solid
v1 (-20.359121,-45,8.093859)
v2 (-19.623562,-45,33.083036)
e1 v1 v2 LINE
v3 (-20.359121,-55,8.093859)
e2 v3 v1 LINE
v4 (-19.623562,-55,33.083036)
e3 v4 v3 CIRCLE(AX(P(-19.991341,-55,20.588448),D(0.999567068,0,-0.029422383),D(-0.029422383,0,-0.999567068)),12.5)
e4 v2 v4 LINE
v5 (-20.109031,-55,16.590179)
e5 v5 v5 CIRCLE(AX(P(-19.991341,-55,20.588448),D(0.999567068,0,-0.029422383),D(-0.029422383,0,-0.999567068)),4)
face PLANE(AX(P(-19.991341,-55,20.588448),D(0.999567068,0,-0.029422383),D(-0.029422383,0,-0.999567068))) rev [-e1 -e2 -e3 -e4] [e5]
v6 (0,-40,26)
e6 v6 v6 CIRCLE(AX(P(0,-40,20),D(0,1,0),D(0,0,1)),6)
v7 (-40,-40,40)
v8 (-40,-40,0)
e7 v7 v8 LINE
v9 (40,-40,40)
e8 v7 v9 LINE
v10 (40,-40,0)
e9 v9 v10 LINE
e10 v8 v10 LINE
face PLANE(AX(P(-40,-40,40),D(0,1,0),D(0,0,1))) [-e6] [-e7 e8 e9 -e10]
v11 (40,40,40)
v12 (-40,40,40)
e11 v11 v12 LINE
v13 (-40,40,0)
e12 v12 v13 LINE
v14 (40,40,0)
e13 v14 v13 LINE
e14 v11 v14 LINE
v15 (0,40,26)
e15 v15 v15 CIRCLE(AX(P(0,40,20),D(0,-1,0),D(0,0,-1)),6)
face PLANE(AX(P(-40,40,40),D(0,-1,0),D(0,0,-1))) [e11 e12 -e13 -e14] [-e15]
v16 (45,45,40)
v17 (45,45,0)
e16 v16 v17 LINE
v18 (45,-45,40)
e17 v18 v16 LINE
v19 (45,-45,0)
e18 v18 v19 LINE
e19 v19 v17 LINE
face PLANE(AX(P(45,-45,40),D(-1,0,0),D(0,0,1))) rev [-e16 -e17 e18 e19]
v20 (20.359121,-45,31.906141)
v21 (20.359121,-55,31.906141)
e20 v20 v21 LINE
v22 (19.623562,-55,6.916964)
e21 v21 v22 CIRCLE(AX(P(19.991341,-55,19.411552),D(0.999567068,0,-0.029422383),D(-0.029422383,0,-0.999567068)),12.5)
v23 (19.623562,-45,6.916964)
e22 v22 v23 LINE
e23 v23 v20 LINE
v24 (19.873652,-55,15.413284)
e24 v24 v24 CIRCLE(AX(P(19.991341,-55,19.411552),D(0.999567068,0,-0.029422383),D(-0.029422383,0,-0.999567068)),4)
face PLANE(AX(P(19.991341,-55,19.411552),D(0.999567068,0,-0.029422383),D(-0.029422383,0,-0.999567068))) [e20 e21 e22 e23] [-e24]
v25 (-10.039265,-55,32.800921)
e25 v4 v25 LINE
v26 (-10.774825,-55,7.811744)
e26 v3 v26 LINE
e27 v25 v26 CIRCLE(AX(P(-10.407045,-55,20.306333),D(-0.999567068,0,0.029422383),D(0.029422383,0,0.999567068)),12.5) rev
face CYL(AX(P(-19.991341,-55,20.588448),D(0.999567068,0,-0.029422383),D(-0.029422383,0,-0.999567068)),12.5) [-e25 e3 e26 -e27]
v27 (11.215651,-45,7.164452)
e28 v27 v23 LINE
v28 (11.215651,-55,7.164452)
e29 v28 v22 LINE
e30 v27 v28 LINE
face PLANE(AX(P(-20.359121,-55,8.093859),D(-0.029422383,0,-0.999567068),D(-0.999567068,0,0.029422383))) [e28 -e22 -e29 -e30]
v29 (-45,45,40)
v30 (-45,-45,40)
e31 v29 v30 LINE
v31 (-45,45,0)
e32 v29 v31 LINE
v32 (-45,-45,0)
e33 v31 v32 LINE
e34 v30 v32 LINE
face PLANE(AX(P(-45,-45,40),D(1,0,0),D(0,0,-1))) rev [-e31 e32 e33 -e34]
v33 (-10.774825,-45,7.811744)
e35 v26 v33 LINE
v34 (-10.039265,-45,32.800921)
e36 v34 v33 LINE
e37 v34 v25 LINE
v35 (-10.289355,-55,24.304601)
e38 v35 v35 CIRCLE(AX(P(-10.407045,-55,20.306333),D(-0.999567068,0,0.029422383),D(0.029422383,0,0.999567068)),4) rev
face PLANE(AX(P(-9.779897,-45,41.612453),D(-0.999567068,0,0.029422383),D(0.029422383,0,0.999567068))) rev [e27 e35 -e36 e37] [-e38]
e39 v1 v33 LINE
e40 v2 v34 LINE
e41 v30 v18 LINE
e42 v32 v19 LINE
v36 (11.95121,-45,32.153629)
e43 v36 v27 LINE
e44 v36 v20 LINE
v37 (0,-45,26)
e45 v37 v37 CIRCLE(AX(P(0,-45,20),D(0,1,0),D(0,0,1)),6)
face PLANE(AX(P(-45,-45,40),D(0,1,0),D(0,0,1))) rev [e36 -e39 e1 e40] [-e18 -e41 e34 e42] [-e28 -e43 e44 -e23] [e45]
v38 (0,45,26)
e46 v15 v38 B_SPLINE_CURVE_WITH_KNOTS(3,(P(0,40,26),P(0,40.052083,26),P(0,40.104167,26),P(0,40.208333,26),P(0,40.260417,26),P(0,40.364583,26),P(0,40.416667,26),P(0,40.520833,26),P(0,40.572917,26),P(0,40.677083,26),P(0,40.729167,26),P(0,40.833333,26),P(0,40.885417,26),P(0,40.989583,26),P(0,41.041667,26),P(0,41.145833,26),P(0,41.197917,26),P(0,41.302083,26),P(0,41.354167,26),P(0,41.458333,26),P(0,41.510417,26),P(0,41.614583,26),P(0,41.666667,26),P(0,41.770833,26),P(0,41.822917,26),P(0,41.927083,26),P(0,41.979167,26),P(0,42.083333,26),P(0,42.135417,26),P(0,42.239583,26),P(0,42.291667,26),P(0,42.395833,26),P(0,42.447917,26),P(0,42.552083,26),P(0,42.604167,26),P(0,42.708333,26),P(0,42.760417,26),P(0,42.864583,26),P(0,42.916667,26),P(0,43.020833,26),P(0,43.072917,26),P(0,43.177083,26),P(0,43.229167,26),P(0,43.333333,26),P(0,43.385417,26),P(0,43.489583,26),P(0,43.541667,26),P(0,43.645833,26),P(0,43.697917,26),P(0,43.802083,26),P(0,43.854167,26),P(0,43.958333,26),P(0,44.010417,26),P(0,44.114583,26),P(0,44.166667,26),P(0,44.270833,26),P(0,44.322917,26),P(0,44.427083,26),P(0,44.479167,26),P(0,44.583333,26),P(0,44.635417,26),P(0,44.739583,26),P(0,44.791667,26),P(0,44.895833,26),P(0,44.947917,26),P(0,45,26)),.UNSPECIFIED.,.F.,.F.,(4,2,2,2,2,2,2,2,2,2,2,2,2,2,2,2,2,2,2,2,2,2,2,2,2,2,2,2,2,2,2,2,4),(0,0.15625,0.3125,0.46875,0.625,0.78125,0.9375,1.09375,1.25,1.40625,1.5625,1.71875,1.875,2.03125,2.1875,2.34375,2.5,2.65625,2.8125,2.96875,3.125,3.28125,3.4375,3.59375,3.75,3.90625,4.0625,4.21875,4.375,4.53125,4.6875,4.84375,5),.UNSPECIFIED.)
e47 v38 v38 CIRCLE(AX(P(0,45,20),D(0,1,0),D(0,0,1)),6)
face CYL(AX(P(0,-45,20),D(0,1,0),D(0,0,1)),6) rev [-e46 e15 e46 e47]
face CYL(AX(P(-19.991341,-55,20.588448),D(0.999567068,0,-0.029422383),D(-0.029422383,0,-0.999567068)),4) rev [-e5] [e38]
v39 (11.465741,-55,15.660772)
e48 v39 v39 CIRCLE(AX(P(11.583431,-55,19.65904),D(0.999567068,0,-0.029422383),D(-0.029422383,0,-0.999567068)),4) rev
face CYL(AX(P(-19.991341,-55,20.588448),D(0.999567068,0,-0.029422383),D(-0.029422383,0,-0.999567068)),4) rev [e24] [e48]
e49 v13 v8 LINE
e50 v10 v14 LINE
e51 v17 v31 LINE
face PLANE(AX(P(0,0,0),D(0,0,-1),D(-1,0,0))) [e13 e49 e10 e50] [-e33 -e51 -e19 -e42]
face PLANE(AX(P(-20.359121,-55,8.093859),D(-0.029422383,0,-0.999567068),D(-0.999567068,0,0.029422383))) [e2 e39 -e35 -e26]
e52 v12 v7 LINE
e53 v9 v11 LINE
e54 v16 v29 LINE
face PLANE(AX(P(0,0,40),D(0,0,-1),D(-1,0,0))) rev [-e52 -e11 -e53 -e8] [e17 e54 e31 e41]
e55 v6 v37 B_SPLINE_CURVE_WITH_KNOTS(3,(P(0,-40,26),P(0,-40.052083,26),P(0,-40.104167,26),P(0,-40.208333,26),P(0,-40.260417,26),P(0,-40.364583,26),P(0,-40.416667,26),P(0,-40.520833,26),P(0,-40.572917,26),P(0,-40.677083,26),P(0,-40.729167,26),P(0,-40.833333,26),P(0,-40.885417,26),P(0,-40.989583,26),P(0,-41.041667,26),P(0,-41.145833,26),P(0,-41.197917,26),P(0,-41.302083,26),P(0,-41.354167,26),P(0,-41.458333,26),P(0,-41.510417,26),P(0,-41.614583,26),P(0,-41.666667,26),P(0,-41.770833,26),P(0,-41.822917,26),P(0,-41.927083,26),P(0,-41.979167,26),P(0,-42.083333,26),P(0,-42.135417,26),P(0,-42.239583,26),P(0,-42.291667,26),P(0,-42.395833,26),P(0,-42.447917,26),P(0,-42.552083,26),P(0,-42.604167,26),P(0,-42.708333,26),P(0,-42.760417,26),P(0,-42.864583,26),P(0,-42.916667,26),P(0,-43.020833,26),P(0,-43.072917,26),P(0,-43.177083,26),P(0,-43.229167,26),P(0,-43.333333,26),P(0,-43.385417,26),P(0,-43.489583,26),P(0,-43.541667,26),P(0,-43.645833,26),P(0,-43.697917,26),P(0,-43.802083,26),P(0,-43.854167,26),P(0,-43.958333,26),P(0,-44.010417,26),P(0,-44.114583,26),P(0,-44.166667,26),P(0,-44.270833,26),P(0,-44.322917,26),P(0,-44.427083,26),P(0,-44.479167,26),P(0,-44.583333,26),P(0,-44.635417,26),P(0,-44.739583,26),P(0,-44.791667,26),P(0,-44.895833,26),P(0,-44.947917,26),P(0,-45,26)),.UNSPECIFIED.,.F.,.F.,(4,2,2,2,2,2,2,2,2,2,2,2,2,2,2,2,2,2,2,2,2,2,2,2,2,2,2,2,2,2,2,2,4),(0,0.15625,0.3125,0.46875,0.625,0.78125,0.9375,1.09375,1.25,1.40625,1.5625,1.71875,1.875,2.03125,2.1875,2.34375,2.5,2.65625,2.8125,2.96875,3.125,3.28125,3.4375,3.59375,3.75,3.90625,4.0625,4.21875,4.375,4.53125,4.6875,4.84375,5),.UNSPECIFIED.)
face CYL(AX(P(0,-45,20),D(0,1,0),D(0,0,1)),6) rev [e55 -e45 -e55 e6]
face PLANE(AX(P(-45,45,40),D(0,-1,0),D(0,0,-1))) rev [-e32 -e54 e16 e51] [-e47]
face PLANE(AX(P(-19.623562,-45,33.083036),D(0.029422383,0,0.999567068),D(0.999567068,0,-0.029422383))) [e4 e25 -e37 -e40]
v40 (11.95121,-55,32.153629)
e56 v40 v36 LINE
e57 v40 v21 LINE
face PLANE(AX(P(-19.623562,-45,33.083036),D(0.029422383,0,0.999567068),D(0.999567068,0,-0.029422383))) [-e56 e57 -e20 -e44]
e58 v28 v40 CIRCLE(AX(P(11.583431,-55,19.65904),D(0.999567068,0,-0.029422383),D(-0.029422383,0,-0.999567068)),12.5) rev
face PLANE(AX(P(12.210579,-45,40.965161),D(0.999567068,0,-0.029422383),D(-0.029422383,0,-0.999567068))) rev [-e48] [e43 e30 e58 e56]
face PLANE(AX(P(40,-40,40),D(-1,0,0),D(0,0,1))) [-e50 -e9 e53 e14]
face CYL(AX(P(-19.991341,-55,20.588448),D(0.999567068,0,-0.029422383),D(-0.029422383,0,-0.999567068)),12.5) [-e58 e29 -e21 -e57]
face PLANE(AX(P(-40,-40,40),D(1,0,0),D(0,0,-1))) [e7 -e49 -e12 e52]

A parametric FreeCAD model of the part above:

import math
import FreeCAD as App
import Part
import Sketcher

V = App.Vector

doc = App.newDocument("Part")
body = doc.addObject("PartDesign::Body", "Body")

sketch1 = body.newObject("Sketcher::SketchObject", "Sketch")
sketch1.AttachmentSupport = (doc.getObject("XY_Plane"), [""])
sketch1.MapMode = "FlatFace"
sketch1.addGeometry(Part.LineSegment(V(-45, 45, 0), V(-45, -45, 0)), False)
sketch1.addGeometry(Part.LineSegment(V(-45, -45, 0), V(45, -45, 0)), False)
sketch1.addGeometry(Part.LineSegment(V(45, -45, 0), V(45, 45, 0)), False)
sketch1.addGeometry(Part.LineSegment(V(45, 45, 0), V(-45, 45, 0)), False)
sketch1.addGeometry(Part.LineSegment(V(40, -40, 0), V(-40, -40, 0)), False)
sketch1.addGeometry(Part.LineSegment(V(-40, -40, 0), V(-40, 40, 0)), False)
sketch1.addGeometry(Part.LineSegment(V(-40, 40, 0), V(40, 40, 0)), False)
sketch1.addGeometry(Part.LineSegment(V(40, 40, 0), V(40, -40, 0)), False)
sketch1.addConstraint(Sketcher.Constraint("Coincident", 0, 2, 1, 1))
sketch1.addConstraint(Sketcher.Constraint("Coincident", 1, 2, 2, 1))
sketch1.addConstraint(Sketcher.Constraint("Coincident", 2, 2, 3, 1))
sketch1.addConstraint(Sketcher.Constraint("Coincident", 3, 2, 0, 1))
sketch1.addConstraint(Sketcher.Constraint("Coincident", 4, 2, 5, 1))
sketch1.addConstraint(Sketcher.Constraint("Coincident", 5, 2, 6, 1))
sketch1.addConstraint(Sketcher.Constraint("Coincident", 6, 2, 7, 1))
sketch1.addConstraint(Sketcher.Constraint("Coincident", 7, 2, 4, 1))
sketch1.addConstraint(Sketcher.Constraint("Vertical", 0))
sketch1.addConstraint(Sketcher.Constraint("Horizontal", 1))
sketch1.addConstraint(Sketcher.Constraint("Vertical", 2))
sketch1.addConstraint(Sketcher.Constraint("Horizontal", 3))
sketch1.addConstraint(Sketcher.Constraint("Horizontal", 4))
sketch1.addConstraint(Sketcher.Constraint("Vertical", 5))
sketch1.addConstraint(Sketcher.Constraint("Horizontal", 6))
sketch1.addConstraint(Sketcher.Constraint("Vertical", 7))
sketch1.addConstraint(Sketcher.Constraint("Symmetric", 0, 2, 2, 2, -1, 1))
sketch1.addConstraint(Sketcher.Constraint("Symmetric", 4, 2, 6, 2, -1, 1))
sketch1.addConstraint(Sketcher.Constraint("Equal", 3, 0))
sketch1.addConstraint(Sketcher.Constraint("Equal", 6, 5))
sketch1.addConstraint(Sketcher.Constraint("DistanceX", 1, 1, 1, 2, 90.0))
sketch1.addConstraint(Sketcher.Constraint("DistanceX", 4, 2, 4, 1, 80.0))
pad1 = body.newObject("PartDesign::Pad", "Pad")
pad1.Profile = sketch1
pad1.Length = 40

sketch2 = body.newObject("Sketcher::SketchObject", "Sketch001")
sketch2.AttachmentSupport = (doc.getObject("XZ_Plane"), [""])
sketch2.MapMode = "FlatFace"
sketch2.AttachmentOffset = App.Placement(V(0, 0, -45), App.Rotation())
sketch2.addGeometry(Part.Circle(V(0, 20, 0), V(0, 0, 1), 6), False)
sketch2.addConstraint(Sketcher.Constraint("PointOnObject", 0, 3, -2))
sketch2.addConstraint(Sketcher.Constraint("Diameter", 0, 12.0))
sketch2.addConstraint(Sketcher.Constraint("DistanceY", -1, 1, 0, 3, 20.0))
pocket1 = body.newObject("PartDesign::Pocket", "Pocket")
pocket1.Profile = sketch2
pocket1.Type = "ThroughAll"
pocket1.Reversed = True

sketch3 = body.newObject("Sketcher::SketchObject", "Sketch002")
sketch3.Placement = App.Placement(V(1.596613, -1.997656, 74.241754), App.Rotation(V(-0.029422383, 0, -0.999567068), V(0, 1, 0), V(0.999567068, 0, -0.029422383), "ZXY"))
sketch3.addGeometry(Part.LineSegment(V(41.8, -43, 0), V(41.8, -53, 0)), False)
sketch3.addGeometry(Part.ArcOfCircle(Part.Circle(V(54.3, -53, 0), V(0, 0, 1), 12.5), math.radians(180), math.radians(360)), False)
sketch3.addGeometry(Part.LineSegment(V(66.8, -53, 0), V(66.8, -43, 0)), False)
sketch3.addGeometry(Part.LineSegment(V(66.8, -43, 0), V(41.8, -43, 0)), False)
sketch3.addGeometry(Part.Circle(V(54.3, -53, 0), V(0, 0, 1), 4), False)
sketch3.addConstraint(Sketcher.Constraint("Tangent", 0, 2, 1, 1))
sketch3.addConstraint(Sketcher.Constraint("Tangent", 1, 2, 2, 1))
sketch3.addConstraint(Sketcher.Constraint("Coincident", 2, 2, 3, 1))
sketch3.addConstraint(Sketcher.Constraint("Coincident", 3, 2, 0, 1))
sketch3.addConstraint(Sketcher.Constraint("Vertical", 0))
sketch3.addConstraint(Sketcher.Constraint("Vertical", 2))
sketch3.addConstraint(Sketcher.Constraint("Horizontal", 3))
sketch3.addConstraint(Sketcher.Constraint("Coincident", 4, 3, 1, 3))
sketch3.addConstraint(Sketcher.Constraint("Diameter", 4, 8.0))
sketch3.addConstraint(Sketcher.Constraint("Radius", 1, 12.5))
sketch3.addConstraint(Sketcher.Constraint("DistanceY", 0, 2, 0, 1, 10.0))
sketch3.addConstraint(Sketcher.Constraint("DistanceX", -1, 1, 1, 3, 54.265248))
sketch3.addConstraint(Sketcher.Constraint("DistanceY", 1, 3, -1, 1, 53.002344))
pad2 = body.newObject("PartDesign::Pad", "Pad001")
pad2.Profile = sketch3
pad2.Type = "TwoLengths"
pad2.Length = 20
pad2.Length2 = 20

sketch4 = body.newObject("Sketcher::SketchObject", "Sketch003")
sketch4.Placement = App.Placement(V(0.220413, 0, 7.488098), App.Rotation(V(-0.999567068, 0, 0.029422383), V(0, 1, 0), V(-0.029422383, 0, -0.999567068), "ZXY"))
sketch4.addGeometry(Part.LineSegment(V(-11, -45, 0), V(-11, -75, 0)), False)
sketch4.addGeometry(Part.LineSegment(V(-11, -75, 0), V(11, -75, 0)), False)
sketch4.addGeometry(Part.LineSegment(V(11, -75, 0), V(11, -45, 0)), False)
sketch4.addGeometry(Part.LineSegment(V(11, -45, 0), V(-11, -45, 0)), False)
sketch4.addConstraint(Sketcher.Constraint("Coincident", 0, 2, 1, 1))
sketch4.addConstraint(Sketcher.Constraint("Coincident", 1, 2, 2, 1))
sketch4.addConstraint(Sketcher.Constraint("Coincident", 2, 2, 3, 1))
sketch4.addConstraint(Sketcher.Constraint("Coincident", 3, 2, 0, 1))
sketch4.addConstraint(Sketcher.Constraint("Vertical", 0))
sketch4.addConstraint(Sketcher.Constraint("Horizontal", 1))
sketch4.addConstraint(Sketcher.Constraint("Vertical", 2))
sketch4.addConstraint(Sketcher.Constraint("Horizontal", 3))
sketch4.addConstraint(Sketcher.Constraint("DistanceX", 1, 1, 1, 2, 22.0))
sketch4.addConstraint(Sketcher.Constraint("DistanceY", 0, 2, 0, 1, 30.0))
sketch4.addConstraint(Sketcher.Constraint("DistanceX", 0, 2, -1, 1, 11.0))
sketch4.addConstraint(Sketcher.Constraint("DistanceY", 0, 2, -1, 1, 75.0))
pocket2 = body.newObject("PartDesign::Pocket", "Pocket001")
pocket2.Profile = sketch4
pocket2.Type = "ThroughAll"

doc.recompute()
